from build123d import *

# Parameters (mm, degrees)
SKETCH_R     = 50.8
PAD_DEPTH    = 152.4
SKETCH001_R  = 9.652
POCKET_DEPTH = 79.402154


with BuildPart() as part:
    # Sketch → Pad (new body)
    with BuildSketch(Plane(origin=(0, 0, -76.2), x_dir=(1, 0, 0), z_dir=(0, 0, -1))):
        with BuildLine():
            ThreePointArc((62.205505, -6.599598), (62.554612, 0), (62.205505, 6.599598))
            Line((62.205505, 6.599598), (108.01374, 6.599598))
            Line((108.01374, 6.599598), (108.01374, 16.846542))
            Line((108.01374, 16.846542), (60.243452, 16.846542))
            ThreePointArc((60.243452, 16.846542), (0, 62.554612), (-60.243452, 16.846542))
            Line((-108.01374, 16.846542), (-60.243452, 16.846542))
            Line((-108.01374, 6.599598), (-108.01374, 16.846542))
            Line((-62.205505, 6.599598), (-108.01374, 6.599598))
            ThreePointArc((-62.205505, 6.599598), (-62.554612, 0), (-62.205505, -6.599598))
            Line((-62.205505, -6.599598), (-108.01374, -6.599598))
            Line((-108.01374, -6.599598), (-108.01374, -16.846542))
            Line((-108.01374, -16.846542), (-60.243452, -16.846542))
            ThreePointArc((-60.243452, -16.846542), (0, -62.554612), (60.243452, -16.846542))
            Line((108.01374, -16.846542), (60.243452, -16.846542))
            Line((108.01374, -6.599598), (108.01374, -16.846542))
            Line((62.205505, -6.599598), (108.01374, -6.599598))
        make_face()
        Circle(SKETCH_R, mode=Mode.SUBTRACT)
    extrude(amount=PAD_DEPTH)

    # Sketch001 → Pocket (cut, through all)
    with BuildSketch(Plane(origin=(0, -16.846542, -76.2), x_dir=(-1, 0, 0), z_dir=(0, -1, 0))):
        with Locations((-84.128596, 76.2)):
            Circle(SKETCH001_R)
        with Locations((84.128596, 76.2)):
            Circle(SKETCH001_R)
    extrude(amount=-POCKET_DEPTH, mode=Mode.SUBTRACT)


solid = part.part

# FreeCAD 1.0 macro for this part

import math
import FreeCAD as App
import Part
import Sketcher
from FreeCAD import Vector
Q = App.Units.Quantity

doc = App.newDocument("Part")
params = doc.addObject("Spreadsheet::Sheet", "Params")
for row, (alias, value) in enumerate([
    ("sketch1_diameter", "4 in"),
    ("pad1_length", "6 in"),
    ("sketch2_diameter", "0.76 in"),
], start=1):
    params.set(f"A{row}", alias)
    params.set(f"B{row}", "=" + value)
    params.setAlias(f"B{row}", alias)

body = doc.addObject("PartDesign::Body", "Body")

sketch1 = doc.addObject("Sketcher::SketchObject", "Sketch")
body.addObject(sketch1)
sketch1.AttachmentSupport = (doc.XY_Plane, [""])
sketch1.MapMode = "FlatFace"
sketch1.AttachmentOffset = App.Placement(Vector(0, 0, -3 * 25.4), App.Rotation())
sketch1.addGeometry([
    Part.ArcOfCircle(Part.Circle(Vector(-0.000091, 0, 0), Vector(0, 0, 1), 62.554703), math.radians(-6.056045), math.radians(6.056045)),
    Part.LineSegment(Vector(62.205505, -6.599598, 0), Vector(108.01374, -6.599598, 0)),
    Part.LineSegment(Vector(108.01374, -6.599598, 0), Vector(108.01374, -16.846542, 0)),
    Part.LineSegment(Vector(108.01374, -16.846542, 0), Vector(60.243452, -16.846542, 0)),
    Part.ArcOfCircle(Part.Circle(Vector(0, 0, 0), Vector(0, 0, 1), 62.554612), math.radians(-164.376827), math.radians(-15.623173)),
    Part.LineSegment(Vector(-60.243452, -16.846542, 0), Vector(-108.01374, -16.846542, 0)),
    Part.LineSegment(Vector(-108.01374, -16.846542, 0), Vector(-108.01374, -6.599598, 0)),
    Part.LineSegment(Vector(-108.01374, -6.599598, 0), Vector(-62.205505, -6.599598, 0)),
    Part.ArcOfCircle(Part.Circle(Vector(0.000091, 0, 0), Vector(0, 0, 1), 62.554703), math.radians(173.943955), math.radians(186.056045)),
    Part.LineSegment(Vector(-62.205505, 6.599598, 0), Vector(-108.01374, 6.599598, 0)),
    Part.LineSegment(Vector(-108.01374, 6.599598, 0), Vector(-108.01374, 16.846542, 0)),
    Part.LineSegment(Vector(-108.01374, 16.846542, 0), Vector(-60.243452, 16.846542, 0)),
    Part.ArcOfCircle(Part.Circle(Vector(0, 0, 0), Vector(0, 0, 1), 62.554612), math.radians(15.623173), math.radians(164.376827)),
    Part.LineSegment(Vector(60.243452, 16.846542, 0), Vector(108.01374, 16.846542, 0)),
    Part.LineSegment(Vector(108.01374, 16.846542, 0), Vector(108.01374, 6.599598, 0)),
    Part.LineSegment(Vector(108.01374, 6.599598, 0), Vector(62.205505, 6.599598, 0)),
    Part.Circle(Vector(0, 0, 0), Vector(0, 0, 1), 50.8),
], False)
sketch1.addConstraint([
    Sketcher.Constraint("Coincident", 0, 1, 1, 1),
    Sketcher.Constraint("Coincident", 1, 2, 2, 1),
    Sketcher.Constraint("Coincident", 2, 2, 3, 1),
    Sketcher.Constraint("Coincident", 3, 2, 4, 2),
    Sketcher.Constraint("Coincident", 4, 1, 5, 1),
    Sketcher.Constraint("Coincident", 5, 2, 6, 1),
    Sketcher.Constraint("Coincident", 6, 2, 7, 1),
    Sketcher.Constraint("Coincident", 7, 2, 8, 2),
    Sketcher.Constraint("Coincident", 8, 1, 9, 1),
    Sketcher.Constraint("Coincident", 9, 2, 10, 1),
    Sketcher.Constraint("Coincident", 10, 2, 11, 1),
    Sketcher.Constraint("Coincident", 11, 2, 12, 2),
    Sketcher.Constraint("Coincident", 12, 1, 13, 1),
    Sketcher.Constraint("Coincident", 13, 2, 14, 1),
    Sketcher.Constraint("Coincident", 14, 2, 15, 1),
    Sketcher.Constraint("Coincident", 15, 2, 0, 2),
    Sketcher.Constraint("Horizontal", 1),
    Sketcher.Constraint("Vertical", 2),
    Sketcher.Constraint("Horizontal", 3),
    Sketcher.Constraint("Horizontal", 5),
    Sketcher.Constraint("Vertical", 6),
    Sketcher.Constraint("Horizontal", 7),
    Sketcher.Constraint("Horizontal", 9),
    Sketcher.Constraint("Vertical", 10),
    Sketcher.Constraint("Horizontal", 11),
    Sketcher.Constraint("Horizontal", 13),
    Sketcher.Constraint("Vertical", 14),
    Sketcher.Constraint("Horizontal", 15),
    Sketcher.Constraint("Coincident", 4, 3, -1, 1),
    Sketcher.Constraint("Coincident", 12, 3, -1, 1),
    Sketcher.Constraint("Coincident", 16, 3, -1, 1),
    Sketcher.Constraint("Equal", 0, 8),
    Sketcher.Constraint("Equal", 4, 12),
    Sketcher.Constraint("Symmetric", 0, 3, 8, 3, -1, 1),
    Sketcher.Constraint("Symmetric", 1, 2, 9, 2, -1, 1),
    Sketcher.Constraint("Symmetric", 5, 2, 13, 2, -1, 1),
    Sketcher.Constraint("Symmetric", 2, 2, 5, 2, -2),
    Sketcher.Constraint("Symmetric", 0, 1, 7, 2, -2),
    Sketcher.Constraint("Horizontal", 11, 2, 12, 1),
    Sketcher.Constraint("Horizontal", 9, 2, 14, 2),
    Sketcher.Constraint("Diameter", 16, Q("4 in")),
    Sketcher.Constraint("Radius", 0, 62.554703),
    Sketcher.Constraint("Radius", 4, 62.554612),
    Sketcher.Constraint("DistanceY", 0, 1, -1, 1, 6.599598),
    Sketcher.Constraint("DistanceX", 1, 1, 1, 2, 45.808235),
    Sketcher.Constraint("DistanceX", 3, 2, 3, 1, 47.770288),
    Sketcher.Constraint("DistanceY", 2, 2, 2, 1, 10.246944),
])
sketch1.setExpression("Constraints[40]", "Params.sketch1_diameter")
pad1 = doc.addObject("PartDesign::Pad", "Pad")
body.addObject(pad1)
pad1.Profile = sketch1
pad1.setExpression("Length", "Params.pad1_length")
pad1.Reversed = True

sketch2 = doc.addObject("Sketcher::SketchObject", "Sketch001")
body.addObject(sketch2)
sketch2.AttachmentSupport = (doc.XZ_Plane, [""])
sketch2.MapMode = "FlatFace"
sketch2.AttachmentOffset = App.Placement(Vector(0, 0, 16.846542), App.Rotation())
sketch2.addGeometry([
    Part.Circle(Vector(84, -152, 0), Vector(0, 0, 1), 10),
    Part.Circle(Vector(-84, -152, 0), Vector(0, 0, 1), 10),
], False)
sketch2.addConstraint([
    Sketcher.Constraint("Equal", 0, 1),
    Sketcher.Constraint("Symmetric", 0, 3, 1, 3, -2),
    Sketcher.Constraint("Diameter", 0, Q("0.76 in")),
    Sketcher.Constraint("DistanceY", 0, 3, -1, 1, Q("6 in")),
    Sketcher.Constraint("DistanceX", 1, 3, 0, 3, 168.257192),
])
sketch2.setExpression("Constraints[2]", "Params.sketch2_diameter")
pocket1 = doc.addObject("PartDesign::Pocket", "Pocket")
body.addObject(pocket1)
pocket1.Profile = sketch2
pocket1.Type = "ThroughAll"

doc.recompute()
